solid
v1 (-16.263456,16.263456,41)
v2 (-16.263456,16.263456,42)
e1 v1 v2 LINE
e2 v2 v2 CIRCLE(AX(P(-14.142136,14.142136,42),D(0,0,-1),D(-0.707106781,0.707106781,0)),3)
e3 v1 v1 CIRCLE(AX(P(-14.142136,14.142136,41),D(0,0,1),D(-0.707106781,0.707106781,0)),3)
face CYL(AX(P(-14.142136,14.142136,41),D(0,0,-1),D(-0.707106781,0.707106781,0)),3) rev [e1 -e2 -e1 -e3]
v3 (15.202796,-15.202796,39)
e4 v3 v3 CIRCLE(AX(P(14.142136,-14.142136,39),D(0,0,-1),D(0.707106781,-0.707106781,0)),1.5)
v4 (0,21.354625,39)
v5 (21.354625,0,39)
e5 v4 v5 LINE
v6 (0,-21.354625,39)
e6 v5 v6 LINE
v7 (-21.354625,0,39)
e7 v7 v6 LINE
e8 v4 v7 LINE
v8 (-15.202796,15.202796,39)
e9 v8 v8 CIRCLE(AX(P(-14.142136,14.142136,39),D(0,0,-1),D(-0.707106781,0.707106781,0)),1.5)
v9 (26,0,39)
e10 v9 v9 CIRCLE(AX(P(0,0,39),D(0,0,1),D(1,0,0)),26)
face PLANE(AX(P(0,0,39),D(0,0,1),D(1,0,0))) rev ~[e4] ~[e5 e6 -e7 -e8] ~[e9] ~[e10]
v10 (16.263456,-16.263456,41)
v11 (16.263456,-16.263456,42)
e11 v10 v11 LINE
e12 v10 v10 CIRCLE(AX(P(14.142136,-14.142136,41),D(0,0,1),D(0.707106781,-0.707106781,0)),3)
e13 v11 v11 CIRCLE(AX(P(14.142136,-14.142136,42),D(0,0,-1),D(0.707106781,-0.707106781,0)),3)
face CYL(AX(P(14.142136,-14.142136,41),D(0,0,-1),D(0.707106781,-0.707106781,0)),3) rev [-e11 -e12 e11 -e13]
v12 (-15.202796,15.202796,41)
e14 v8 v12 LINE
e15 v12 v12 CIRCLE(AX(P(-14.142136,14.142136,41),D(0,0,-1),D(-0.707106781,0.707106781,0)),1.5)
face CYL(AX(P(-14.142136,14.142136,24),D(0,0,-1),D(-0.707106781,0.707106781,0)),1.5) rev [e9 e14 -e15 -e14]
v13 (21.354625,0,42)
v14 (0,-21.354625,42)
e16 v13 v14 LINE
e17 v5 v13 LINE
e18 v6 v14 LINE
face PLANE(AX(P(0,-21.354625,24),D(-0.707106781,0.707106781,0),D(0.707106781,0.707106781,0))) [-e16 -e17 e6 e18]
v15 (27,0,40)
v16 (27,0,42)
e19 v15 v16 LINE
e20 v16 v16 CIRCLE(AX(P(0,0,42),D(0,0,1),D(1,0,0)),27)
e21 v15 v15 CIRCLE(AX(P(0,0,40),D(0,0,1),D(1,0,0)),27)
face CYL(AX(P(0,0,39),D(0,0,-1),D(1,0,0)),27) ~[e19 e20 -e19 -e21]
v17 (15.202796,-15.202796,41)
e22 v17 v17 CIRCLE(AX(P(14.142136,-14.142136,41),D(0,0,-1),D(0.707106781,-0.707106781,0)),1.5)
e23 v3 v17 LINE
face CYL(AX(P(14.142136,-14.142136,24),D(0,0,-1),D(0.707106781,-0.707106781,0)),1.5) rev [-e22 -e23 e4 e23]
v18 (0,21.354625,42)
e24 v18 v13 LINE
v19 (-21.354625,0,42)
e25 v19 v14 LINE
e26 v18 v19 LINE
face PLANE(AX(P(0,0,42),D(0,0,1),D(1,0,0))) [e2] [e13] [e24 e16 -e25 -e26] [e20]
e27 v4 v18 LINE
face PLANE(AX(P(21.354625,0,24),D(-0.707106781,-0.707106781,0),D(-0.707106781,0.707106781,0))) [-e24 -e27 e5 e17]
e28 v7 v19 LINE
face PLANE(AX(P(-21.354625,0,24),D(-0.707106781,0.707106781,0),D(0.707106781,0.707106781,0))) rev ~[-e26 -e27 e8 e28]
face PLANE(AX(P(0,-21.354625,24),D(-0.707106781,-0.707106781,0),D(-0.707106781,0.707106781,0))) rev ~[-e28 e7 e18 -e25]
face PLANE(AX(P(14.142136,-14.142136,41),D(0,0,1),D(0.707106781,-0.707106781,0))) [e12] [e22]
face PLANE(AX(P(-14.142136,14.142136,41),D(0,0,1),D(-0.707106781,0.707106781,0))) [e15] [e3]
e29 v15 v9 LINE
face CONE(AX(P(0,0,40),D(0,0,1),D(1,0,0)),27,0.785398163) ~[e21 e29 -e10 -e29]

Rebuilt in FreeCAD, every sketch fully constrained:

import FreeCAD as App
import Part
import Sketcher
from FreeCAD import Vector


def edges_at(feature, points):
    """Names of the edges that pass closest to the given points."""
    edges = feature.Shape.Edges
    near = lambda p: min(range(len(edges)), key=lambda i: edges[i].distToShape(Part.Vertex(*p))[0])
    return sorted({f"Edge{near(p) + 1}" for p in points})

doc = App.newDocument("Part")
body = doc.addObject("PartDesign::Body", "Body")

# Sketch on XY plane
sketch1 = body.newObject("Sketcher::SketchObject", "Sketch")
sketch1.AttachmentSupport = (doc.getObject("XY_Plane"), [""])
sketch1.MapMode = "FlatFace"
sketch1.addGeometry(Part.Circle(Vector(0, 0, 0), Vector(0, 0, 1), 1.5), False)
sketch1.addConstraint([
    Sketcher.Constraint("Coincident", 0, 3, -1, 1),
    Sketcher.Constraint("Diameter", 0, 3.0),
])
pad1 = body.newObject("PartDesign::Pad", "Pad")
pad1.Profile = sketch1
pad1.Length = 20
body2 = doc.addObject("PartDesign::Body", "Body001")
doc.recompute()

body.Placement = App.Placement(Vector(-14.142136, 14.142136, -30), App.Rotation(Vector(0, 0, 1), 135))
boolean = body2.newObject("PartDesign::Boolean", "Boolean")
boolean.Type = "Fuse"
boolean.addObjects([body])
body3 = doc.addObject("PartDesign::Body", "Body002")

# Sketch on XY plane
sketch2 = body3.newObject("Sketcher::SketchObject", "Sketch001")
sketch2.AttachmentSupport = (doc.getObject("XY_Plane002"), [""])
sketch2.MapMode = "FlatFace"
sketch2.addGeometry(Part.Circle(Vector(0, 0, 0), Vector(0, 0, 1), 1.5), False)
sketch2.addConstraint([
    Sketcher.Constraint("Coincident", 0, 3, -1, 1),
    Sketcher.Constraint("Diameter", 0, 3.0),
])
pad2 = body3.newObject("PartDesign::Pad", "Pad001")
pad2.Profile = sketch2
pad2.Length = 20
body4 = doc.addObject("PartDesign::Body", "Body003")
body4.AllowCompound = True
doc.recompute()

body3.Placement = App.Placement(Vector(14.142136, -14.142136, -30), App.Rotation(Vector(0, 0, -1), 45))
boolean2 = body4.newObject("PartDesign::Boolean", "Boolean001")
boolean2.Type = "Fuse"
boolean2.addObjects([body3])
doc.recompute()

boolean3 = body4.newObject("PartDesign::Boolean", "Boolean002")
boolean3.Type = "Fuse"
boolean3.addObjects([body2])
body5 = doc.addObject("PartDesign::Body", "Body004")

# Sketch on XY plane
sketch3 = body5.newObject("Sketcher::SketchObject", "Sketch002")
sketch3.AttachmentSupport = (doc.getObject("XY_Plane004"), [""])
sketch3.MapMode = "FlatFace"
sketch3.addGeometry(Part.Circle(Vector(0, 0, 0), Vector(0, 0, 1), 3), False)
sketch3.addConstraint([
    Sketcher.Constraint("Coincident", 0, 3, -1, 1),
    Sketcher.Constraint("Diameter", 0, 6.0),
])
pad3 = body5.newObject("PartDesign::Pad", "Pad002")
pad3.Profile = sketch3
pad3.Length = 3
body6 = doc.addObject("PartDesign::Body", "Body005")
doc.recompute()

body5.Placement = App.Placement(Vector(-14.142136, 14.142136, -30), App.Rotation(Vector(0, 0, 1), 135))
boolean4 = body6.newObject("PartDesign::Boolean", "Boolean003")
boolean4.Type = "Fuse"
boolean4.addObjects([body5])
body7 = doc.addObject("PartDesign::Body", "Body006")

# Sketch on XY plane
sketch4 = body7.newObject("Sketcher::SketchObject", "Sketch003")
sketch4.AttachmentSupport = (doc.getObject("XY_Plane006"), [""])
sketch4.MapMode = "FlatFace"
sketch4.addGeometry(Part.Circle(Vector(0, 0, 0), Vector(0, 0, 1), 3), False)
sketch4.addConstraint([
    Sketcher.Constraint("Coincident", 0, 3, -1, 1),
    Sketcher.Constraint("Diameter", 0, 6.0),
])
pad4 = body7.newObject("PartDesign::Pad", "Pad003")
pad4.Profile = sketch4
pad4.Length = 3
body8 = doc.addObject("PartDesign::Body", "Body007")
body8.AllowCompound = True
doc.recompute()

body7.Placement = App.Placement(Vector(14.142136, -14.142136, -30), App.Rotation(Vector(0, 0, -1), 45))
boolean5 = body8.newObject("PartDesign::Boolean", "Boolean004")
boolean5.Type = "Fuse"
boolean5.addObjects([body7])
doc.recompute()

boolean6 = body8.newObject("PartDesign::Boolean", "Boolean005")
boolean6.Type = "Fuse"
boolean6.addObjects([body6])
body9 = doc.addObject("PartDesign::Body", "Body008")
body9.AllowCompound = True
doc.recompute()

body8.Placement = App.Placement(Vector(0, 0, 17), App.Rotation(Vector(0, 0, 1), 0))
boolean7 = body9.newObject("PartDesign::Boolean", "Boolean006")
boolean7.Type = "Fuse"
boolean7.addObjects([body8])
body10 = doc.addObject("PartDesign::Body", "Body009")

# Sketch on XY plane
sketch5 = body10.newObject("Sketcher::SketchObject", "Sketch004")
sketch5.AttachmentSupport = (doc.getObject("XY_Plane009"), [""])
sketch5.MapMode = "FlatFace"
sketch5.addGeometry([
    Part.LineSegment(Vector(0, 30.2, 0), Vector(0, 0, 0)),
    Part.LineSegment(Vector(0, 0, 0), Vector(30.2, 0, 0)),
    Part.LineSegment(Vector(30.2, 0, 0), Vector(30.2, 30.2, 0)),
    Part.LineSegment(Vector(30.2, 30.2, 0), Vector(0, 30.2, 0)),
], False)
sketch5.addConstraint([
    Sketcher.Constraint("Coincident", 0, 2, 1, 1),
    Sketcher.Constraint("Coincident", 1, 2, 2, 1),
    Sketcher.Constraint("Coincident", 2, 2, 3, 1),
    Sketcher.Constraint("Coincident", 3, 2, 0, 1),
    Sketcher.Constraint("Vertical", 0),
    Sketcher.Constraint("Horizontal", 1),
    Sketcher.Constraint("Vertical", 2),
    Sketcher.Constraint("Horizontal", 3),
    Sketcher.Constraint("Coincident", 0, 2, -1, 1),
    Sketcher.Constraint("Equal", 3, 0),
    Sketcher.Constraint("DistanceX", 1, 1, 1, 2, 30.2),
])
pad5 = body10.newObject("PartDesign::Pad", "Pad004")
pad5.Profile = sketch5
pad5.Length = 100
body11 = doc.addObject("PartDesign::Body", "Body010")
doc.recompute()

body10.Placement = App.Placement(Vector(0, -21.354625, -30), App.Rotation(Vector(0, 0, 1), 45))
boolean8 = body11.newObject("PartDesign::Boolean", "Boolean007")
boolean8.Type = "Fuse"
boolean8.addObjects([body10])
body12 = doc.addObject("PartDesign::Body", "Body011")

# Sketch on XY plane
sketch6 = body12.newObject("Sketcher::SketchObject", "Sketch005")
sketch6.AttachmentSupport = (doc.getObject("XY_Plane011"), [""])
sketch6.MapMode = "FlatFace"
sketch6.AttachmentOffset = App.Placement(Vector(0, 0, -15), App.Rotation())
sketch6.addGeometry(Part.Circle(Vector(0, 0, 0), Vector(0, 0, 1), 27), False)
sketch6.addConstraint([
    Sketcher.Constraint("Coincident", 0, 3, -1, 1),
    Sketcher.Constraint("Diameter", 0, 54.0),
])
pad6 = body12.newObject("PartDesign::Pad", "Pad005")
pad6.Profile = sketch6
pad6.Length = 3
doc.recompute()

boolean9 = body12.newObject("PartDesign::Boolean", "Boolean008")
boolean9.Type = "Cut"
boolean9.addObjects([body11])
doc.recompute()

chamfer = body12.newObject("PartDesign::Chamfer", "Chamfer")
chamfer.Base = (boolean9, edges_at(boolean9, [(-27, 0, -15)]))
chamfer.Size = 1
doc.recompute()

boolean10 = body12.newObject("PartDesign::Boolean", "Boolean009")
boolean10.Type = "Cut"
boolean10.addObjects([body9])
doc.recompute()

boolean11 = body12.newObject("PartDesign::Boolean", "Boolean010")
boolean11.Type = "Cut"
boolean11.addObjects([body4])
body13 = doc.addObject("PartDesign::Body", "Body012")
doc.recompute()

body12.Placement = App.Placement(Vector(0, 0, 54), App.Rotation(Vector(0, 0, 1), 0))
boolean12 = body13.newObject("PartDesign::Boolean", "Boolean011")
boolean12.Type = "Fuse"
boolean12.addObjects([body12])

doc.recompute()
